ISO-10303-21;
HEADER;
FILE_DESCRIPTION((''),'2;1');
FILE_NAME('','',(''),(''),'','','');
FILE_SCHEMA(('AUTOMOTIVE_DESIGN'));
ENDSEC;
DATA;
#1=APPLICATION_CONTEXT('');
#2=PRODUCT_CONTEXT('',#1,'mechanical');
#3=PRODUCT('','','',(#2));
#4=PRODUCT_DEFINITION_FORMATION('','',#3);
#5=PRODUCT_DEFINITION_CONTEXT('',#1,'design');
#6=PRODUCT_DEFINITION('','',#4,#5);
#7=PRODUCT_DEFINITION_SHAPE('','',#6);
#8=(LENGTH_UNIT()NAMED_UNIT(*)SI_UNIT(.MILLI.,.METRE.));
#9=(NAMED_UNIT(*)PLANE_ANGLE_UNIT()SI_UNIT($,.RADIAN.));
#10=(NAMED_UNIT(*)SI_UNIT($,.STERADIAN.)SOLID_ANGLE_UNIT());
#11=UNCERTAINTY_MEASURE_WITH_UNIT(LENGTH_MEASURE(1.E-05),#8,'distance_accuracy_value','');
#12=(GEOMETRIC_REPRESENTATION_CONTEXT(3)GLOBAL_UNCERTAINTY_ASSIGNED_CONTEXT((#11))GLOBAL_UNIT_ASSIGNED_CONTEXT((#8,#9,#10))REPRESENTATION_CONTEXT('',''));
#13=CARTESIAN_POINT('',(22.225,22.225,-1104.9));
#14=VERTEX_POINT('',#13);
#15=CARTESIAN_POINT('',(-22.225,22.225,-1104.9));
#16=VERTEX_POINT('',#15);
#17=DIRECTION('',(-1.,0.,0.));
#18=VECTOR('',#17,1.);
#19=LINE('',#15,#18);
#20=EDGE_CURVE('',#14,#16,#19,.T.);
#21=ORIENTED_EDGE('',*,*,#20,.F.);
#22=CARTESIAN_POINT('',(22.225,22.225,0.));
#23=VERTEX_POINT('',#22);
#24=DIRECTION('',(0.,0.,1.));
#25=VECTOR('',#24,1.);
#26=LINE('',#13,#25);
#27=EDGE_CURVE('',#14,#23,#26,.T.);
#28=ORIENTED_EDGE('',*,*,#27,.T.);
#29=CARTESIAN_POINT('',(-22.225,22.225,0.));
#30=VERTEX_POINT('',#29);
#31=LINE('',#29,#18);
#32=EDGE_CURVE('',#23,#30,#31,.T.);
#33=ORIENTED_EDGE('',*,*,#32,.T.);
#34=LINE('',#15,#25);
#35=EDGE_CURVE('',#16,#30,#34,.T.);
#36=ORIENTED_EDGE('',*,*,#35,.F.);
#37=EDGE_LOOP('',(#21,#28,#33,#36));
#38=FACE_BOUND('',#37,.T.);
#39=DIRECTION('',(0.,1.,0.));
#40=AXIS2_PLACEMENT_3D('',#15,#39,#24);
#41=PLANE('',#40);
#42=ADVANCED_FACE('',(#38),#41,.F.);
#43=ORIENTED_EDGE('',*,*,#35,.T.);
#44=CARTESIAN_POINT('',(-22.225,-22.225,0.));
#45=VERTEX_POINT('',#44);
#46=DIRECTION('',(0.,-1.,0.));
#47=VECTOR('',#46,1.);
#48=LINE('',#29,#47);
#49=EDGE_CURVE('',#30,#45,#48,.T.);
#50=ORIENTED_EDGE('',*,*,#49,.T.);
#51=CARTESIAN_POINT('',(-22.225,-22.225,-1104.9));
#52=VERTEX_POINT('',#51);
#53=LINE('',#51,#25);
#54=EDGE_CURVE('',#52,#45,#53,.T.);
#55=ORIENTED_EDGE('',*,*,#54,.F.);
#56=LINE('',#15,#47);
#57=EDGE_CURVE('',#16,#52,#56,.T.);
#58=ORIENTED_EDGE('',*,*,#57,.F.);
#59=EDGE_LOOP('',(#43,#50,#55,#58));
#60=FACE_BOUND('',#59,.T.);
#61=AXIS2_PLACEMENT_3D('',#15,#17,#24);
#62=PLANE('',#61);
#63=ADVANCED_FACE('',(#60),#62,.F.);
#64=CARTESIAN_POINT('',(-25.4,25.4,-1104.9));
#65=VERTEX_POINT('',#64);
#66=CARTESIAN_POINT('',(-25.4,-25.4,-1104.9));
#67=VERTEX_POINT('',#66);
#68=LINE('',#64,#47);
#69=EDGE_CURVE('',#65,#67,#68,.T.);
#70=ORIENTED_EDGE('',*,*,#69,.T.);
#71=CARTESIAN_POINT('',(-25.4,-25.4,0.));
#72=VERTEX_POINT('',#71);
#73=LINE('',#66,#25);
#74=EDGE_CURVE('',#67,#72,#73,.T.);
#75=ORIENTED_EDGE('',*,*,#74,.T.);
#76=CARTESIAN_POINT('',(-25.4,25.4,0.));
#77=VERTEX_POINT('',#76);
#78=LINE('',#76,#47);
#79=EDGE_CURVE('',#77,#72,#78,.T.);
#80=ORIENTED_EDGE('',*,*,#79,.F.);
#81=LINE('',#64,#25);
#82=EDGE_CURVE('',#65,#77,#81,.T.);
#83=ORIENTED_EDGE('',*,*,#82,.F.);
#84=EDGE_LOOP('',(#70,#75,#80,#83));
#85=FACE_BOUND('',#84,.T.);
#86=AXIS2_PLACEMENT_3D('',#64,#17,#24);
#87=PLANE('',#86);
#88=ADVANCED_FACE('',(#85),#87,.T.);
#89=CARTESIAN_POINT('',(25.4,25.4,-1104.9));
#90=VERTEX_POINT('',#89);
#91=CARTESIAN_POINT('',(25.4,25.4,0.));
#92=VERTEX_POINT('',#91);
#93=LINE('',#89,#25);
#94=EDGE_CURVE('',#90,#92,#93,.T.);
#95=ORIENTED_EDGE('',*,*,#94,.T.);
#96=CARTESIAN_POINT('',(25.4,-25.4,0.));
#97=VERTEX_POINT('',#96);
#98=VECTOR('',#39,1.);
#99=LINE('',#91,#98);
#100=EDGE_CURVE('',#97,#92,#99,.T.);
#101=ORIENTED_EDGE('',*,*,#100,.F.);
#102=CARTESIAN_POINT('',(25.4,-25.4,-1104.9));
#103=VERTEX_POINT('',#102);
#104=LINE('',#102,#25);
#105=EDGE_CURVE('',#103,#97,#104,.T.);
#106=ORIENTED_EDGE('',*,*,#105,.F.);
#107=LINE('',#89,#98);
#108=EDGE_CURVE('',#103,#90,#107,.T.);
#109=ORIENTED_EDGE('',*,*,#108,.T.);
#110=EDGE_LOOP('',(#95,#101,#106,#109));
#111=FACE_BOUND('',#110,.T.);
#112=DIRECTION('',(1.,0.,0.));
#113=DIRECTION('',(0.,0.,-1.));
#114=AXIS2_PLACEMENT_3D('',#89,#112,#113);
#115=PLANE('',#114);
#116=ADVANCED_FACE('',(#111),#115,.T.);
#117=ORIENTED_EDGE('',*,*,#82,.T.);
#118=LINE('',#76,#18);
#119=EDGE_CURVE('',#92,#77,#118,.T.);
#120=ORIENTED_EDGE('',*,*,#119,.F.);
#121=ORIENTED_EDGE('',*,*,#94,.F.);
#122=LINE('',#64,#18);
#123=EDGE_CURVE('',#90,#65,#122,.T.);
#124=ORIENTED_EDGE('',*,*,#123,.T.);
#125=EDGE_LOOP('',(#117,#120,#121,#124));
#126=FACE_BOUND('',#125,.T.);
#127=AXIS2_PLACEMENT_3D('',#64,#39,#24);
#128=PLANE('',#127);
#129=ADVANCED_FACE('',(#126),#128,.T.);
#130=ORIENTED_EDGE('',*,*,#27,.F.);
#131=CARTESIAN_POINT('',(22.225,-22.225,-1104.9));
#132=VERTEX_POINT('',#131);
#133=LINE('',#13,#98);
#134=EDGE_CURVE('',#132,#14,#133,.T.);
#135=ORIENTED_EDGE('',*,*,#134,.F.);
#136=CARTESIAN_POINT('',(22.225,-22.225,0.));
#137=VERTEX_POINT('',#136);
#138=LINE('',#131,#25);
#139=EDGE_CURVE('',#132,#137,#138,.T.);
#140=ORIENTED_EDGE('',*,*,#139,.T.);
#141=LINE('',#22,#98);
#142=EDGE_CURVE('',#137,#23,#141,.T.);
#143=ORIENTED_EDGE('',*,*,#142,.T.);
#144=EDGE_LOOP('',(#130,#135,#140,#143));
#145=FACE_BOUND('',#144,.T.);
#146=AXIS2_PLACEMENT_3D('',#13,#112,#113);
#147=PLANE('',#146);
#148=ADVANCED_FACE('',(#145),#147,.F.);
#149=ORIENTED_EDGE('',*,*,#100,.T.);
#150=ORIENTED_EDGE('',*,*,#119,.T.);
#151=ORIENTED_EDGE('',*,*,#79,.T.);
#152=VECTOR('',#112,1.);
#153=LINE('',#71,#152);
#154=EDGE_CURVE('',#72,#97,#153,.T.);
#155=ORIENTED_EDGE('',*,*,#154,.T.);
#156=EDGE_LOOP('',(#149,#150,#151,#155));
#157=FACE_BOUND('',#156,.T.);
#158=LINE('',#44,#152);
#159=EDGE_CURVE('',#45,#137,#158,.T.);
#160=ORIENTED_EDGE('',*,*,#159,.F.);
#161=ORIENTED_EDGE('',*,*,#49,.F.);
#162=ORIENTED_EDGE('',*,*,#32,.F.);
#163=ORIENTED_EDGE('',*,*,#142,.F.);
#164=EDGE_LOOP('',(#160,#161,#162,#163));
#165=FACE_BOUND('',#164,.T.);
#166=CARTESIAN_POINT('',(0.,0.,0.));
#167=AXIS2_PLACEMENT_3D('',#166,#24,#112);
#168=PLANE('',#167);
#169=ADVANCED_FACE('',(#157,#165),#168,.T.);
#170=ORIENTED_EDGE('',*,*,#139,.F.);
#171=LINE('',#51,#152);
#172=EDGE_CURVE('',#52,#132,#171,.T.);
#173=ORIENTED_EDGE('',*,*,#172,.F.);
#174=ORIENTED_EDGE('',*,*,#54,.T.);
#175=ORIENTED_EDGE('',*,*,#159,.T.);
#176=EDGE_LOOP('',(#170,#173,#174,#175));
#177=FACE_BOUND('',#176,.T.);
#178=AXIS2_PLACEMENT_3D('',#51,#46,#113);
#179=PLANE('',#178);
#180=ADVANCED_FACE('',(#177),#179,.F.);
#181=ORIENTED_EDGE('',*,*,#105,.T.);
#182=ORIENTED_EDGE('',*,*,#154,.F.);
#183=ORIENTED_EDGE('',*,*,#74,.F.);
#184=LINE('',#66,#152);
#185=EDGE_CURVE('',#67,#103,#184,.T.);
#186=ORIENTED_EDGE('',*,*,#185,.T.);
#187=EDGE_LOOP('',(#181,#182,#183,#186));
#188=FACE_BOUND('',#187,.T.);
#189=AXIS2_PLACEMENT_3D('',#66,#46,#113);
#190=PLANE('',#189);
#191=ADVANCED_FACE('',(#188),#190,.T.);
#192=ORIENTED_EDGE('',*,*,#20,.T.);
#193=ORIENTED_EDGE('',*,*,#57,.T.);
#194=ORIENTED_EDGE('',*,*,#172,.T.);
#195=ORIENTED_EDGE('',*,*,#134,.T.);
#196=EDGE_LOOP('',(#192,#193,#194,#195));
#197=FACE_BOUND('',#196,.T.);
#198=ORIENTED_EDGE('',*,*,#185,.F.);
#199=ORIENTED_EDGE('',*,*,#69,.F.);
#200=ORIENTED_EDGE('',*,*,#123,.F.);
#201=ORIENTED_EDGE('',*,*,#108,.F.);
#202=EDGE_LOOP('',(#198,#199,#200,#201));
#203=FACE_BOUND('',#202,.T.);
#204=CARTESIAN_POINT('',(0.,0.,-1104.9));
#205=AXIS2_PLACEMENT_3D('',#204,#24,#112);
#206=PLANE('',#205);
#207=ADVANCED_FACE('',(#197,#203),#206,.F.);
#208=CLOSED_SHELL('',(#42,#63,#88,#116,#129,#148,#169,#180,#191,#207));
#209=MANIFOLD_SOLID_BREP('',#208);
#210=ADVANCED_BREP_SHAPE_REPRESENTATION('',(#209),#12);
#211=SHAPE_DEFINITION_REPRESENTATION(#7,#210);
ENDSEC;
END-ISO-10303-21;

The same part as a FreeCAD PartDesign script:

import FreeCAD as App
import Part
import Sketcher

V = App.Vector
Q = App.Units.Quantity


def add_polygon(sketch, points):
    """Adds a closed chain of lines whose ends are joined by coincident constraints."""
    first, n = sketch.GeometryCount, len(points)
    for a, b in zip(points, points[1:] + points[:1]):
        sketch.addGeometry(Part.LineSegment(App.Vector(*a, 0), App.Vector(*b, 0)), False)
    for i in range(n):
        sketch.addConstraint(Sketcher.Constraint("Coincident", first + i, 2, first + (i + 1) % n, 1))

doc = App.newDocument("Part")
params = doc.addObject("Spreadsheet::Sheet", "Params")
for row, (alias, value) in enumerate([
    ("sketch1_width", "2 in"),
    ("sketch1_width2", "1.75 in"),
    ("pad1_length", "43.5 in"),
], start=1):
    params.set(f"A{row}", alias)
    params.set(f"B{row}", "=" + value)
    params.setAlias(f"B{row}", alias)

body = doc.addObject("PartDesign::Body", "Body")

sketch1 = body.newObject("Sketcher::SketchObject", "Sketch")
sketch1.AttachmentSupport = (doc.getObject("XY_Plane"), [""])
sketch1.MapMode = "FlatFace"
add_polygon(sketch1, [(-25, 25), (-25, -25), (25, -25), (25, 25)])
add_polygon(sketch1, [(22, -22), (-22, -22), (-22, 22), (22, 22)])
sketch1.addConstraint(Sketcher.Constraint("Vertical", 0))
sketch1.addConstraint(Sketcher.Constraint("Horizontal", 1))
sketch1.addConstraint(Sketcher.Constraint("Vertical", 2))
sketch1.addConstraint(Sketcher.Constraint("Horizontal", 3))
sketch1.addConstraint(Sketcher.Constraint("Horizontal", 4))
sketch1.addConstraint(Sketcher.Constraint("Vertical", 5))
sketch1.addConstraint(Sketcher.Constraint("Horizontal", 6))
sketch1.addConstraint(Sketcher.Constraint("Vertical", 7))
sketch1.addConstraint(Sketcher.Constraint("Symmetric", 0, 2, 2, 2, -1, 1))
sketch1.addConstraint(Sketcher.Constraint("Symmetric", 4, 2, 6, 2, -1, 1))
sketch1.addConstraint(Sketcher.Constraint("Equal", 3, 0))
sketch1.addConstraint(Sketcher.Constraint("Equal", 6, 5))
sketch1.addConstraint(Sketcher.Constraint("DistanceX", 1, 1, 1, 2, Q("2 in")))
sketch1.addConstraint(Sketcher.Constraint("DistanceX", 4, 2, 4, 1, Q("1.75 in")))
sketch1.setExpression("Constraints[20]", "Params.sketch1_width")
sketch1.setExpression("Constraints[21]", "Params.sketch1_width2")
pad1 = body.newObject("PartDesign::Pad", "Pad")
pad1.Profile = sketch1
pad1.setExpression("Length", "Params.pad1_length")
pad1.Reversed = True

doc.recompute()
